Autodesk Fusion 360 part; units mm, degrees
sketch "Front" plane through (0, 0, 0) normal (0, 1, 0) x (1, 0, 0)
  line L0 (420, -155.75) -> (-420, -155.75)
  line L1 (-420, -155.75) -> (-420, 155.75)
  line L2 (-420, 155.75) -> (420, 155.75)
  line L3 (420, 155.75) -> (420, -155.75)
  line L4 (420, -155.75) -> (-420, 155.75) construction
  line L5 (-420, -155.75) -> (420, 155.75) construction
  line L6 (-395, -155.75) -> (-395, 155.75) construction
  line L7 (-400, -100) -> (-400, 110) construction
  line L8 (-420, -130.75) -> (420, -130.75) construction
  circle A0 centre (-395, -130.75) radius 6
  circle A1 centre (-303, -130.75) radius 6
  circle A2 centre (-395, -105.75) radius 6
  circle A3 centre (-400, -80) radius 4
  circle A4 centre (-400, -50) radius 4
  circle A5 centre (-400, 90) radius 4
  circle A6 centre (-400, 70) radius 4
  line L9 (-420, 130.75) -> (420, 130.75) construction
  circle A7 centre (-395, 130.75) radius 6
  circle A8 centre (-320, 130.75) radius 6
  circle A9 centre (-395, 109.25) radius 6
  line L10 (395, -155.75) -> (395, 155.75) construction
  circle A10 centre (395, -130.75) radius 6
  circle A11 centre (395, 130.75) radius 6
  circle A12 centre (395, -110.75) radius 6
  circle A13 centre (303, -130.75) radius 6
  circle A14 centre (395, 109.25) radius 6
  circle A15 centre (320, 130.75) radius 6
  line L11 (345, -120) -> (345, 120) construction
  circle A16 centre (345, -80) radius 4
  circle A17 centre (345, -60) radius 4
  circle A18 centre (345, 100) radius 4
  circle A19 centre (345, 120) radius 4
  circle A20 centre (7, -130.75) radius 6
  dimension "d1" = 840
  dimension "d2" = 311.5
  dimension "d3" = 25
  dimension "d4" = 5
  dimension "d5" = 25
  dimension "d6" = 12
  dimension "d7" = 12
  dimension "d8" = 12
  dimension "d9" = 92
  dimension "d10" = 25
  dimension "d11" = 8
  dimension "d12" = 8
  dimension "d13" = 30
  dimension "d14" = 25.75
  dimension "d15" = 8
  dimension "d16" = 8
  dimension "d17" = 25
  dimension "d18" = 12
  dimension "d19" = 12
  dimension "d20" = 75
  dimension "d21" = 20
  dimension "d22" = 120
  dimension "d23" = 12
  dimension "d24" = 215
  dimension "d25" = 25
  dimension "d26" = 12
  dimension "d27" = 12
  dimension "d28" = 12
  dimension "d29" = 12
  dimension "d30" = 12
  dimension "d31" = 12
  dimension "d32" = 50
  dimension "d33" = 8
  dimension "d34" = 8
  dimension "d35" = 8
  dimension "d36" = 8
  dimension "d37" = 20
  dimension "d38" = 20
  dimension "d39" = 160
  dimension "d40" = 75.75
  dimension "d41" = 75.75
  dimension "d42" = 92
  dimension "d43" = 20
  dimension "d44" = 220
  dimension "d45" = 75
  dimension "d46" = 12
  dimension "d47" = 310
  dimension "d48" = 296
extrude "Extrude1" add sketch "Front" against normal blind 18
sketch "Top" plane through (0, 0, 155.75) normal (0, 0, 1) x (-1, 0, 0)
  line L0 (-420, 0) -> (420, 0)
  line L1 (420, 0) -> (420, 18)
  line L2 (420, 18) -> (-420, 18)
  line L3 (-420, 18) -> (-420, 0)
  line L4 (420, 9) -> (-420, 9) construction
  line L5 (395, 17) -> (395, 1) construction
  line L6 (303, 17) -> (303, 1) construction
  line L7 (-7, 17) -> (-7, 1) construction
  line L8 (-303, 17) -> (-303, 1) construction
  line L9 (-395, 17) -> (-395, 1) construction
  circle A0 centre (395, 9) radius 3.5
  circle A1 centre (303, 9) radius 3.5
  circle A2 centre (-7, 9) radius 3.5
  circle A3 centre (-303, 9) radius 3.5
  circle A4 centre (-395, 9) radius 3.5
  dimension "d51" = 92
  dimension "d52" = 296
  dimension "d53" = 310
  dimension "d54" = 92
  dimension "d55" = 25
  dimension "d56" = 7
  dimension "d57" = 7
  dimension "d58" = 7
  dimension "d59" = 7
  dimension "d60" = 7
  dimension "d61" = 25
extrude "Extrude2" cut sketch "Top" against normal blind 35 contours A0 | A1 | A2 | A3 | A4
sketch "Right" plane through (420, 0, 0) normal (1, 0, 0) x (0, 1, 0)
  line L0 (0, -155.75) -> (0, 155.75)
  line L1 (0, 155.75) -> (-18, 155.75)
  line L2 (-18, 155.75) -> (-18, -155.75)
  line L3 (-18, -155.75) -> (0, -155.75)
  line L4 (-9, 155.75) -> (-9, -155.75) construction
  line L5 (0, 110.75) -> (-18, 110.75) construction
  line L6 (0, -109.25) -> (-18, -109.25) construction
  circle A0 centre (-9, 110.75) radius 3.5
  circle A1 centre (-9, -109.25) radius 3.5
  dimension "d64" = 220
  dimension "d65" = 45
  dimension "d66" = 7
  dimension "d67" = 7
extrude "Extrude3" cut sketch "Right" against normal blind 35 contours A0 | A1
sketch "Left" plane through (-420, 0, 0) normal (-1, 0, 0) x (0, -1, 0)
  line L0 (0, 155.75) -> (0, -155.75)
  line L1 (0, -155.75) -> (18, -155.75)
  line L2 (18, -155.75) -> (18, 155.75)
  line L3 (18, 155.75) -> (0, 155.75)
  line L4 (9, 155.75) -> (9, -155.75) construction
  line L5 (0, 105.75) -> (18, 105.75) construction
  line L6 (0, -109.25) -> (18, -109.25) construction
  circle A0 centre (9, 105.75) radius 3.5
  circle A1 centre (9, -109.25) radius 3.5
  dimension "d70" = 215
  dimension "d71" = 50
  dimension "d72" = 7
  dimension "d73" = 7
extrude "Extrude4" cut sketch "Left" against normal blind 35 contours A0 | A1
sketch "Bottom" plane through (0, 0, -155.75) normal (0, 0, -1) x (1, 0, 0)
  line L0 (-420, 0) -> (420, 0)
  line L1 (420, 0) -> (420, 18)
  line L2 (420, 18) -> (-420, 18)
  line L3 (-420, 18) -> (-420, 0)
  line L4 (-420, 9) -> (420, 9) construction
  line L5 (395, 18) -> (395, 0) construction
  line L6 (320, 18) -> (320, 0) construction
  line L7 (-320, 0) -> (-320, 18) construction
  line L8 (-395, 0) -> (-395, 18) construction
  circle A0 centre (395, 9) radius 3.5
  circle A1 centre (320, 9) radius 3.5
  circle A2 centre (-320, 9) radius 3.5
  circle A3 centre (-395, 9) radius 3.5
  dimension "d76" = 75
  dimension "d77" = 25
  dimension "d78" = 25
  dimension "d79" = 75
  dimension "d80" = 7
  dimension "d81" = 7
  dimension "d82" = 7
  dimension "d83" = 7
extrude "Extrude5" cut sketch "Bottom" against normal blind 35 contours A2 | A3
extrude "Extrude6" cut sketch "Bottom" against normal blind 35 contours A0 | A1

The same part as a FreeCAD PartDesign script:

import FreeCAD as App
import Part
import Sketcher

V = App.Vector

doc = App.newDocument("Part")
body = doc.addObject("PartDesign::Body", "Body")

# Sketch on XZ plane
sketch1 = body.newObject("Sketcher::SketchObject", "Sketch")
sketch1.AttachmentSupport = (doc.getObject("XZ_Plane"), [""])
sketch1.MapMode = "FlatFace"
sketch1.addGeometry(Part.LineSegment(V(-420, 155.8, 0), V(420, 155.8, 0)), False)
sketch1.addGeometry(Part.LineSegment(V(420, 155.8, 0), V(420, -155.8, 0)), False)
sketch1.addGeometry(Part.LineSegment(V(420, -155.8, 0), V(-420, -155.8, 0)), False)
sketch1.addGeometry(Part.LineSegment(V(-420, -155.8, 0), V(-420, 155.8, 0)), False)
sketch1.addGeometry(Part.Circle(V(-395, 130.8, 0), V(0, 0, 1), 6), False)
sketch1.addGeometry(Part.Circle(V(-303, 130.8, 0), V(0, 0, 1), 6), False)
sketch1.addGeometry(Part.Circle(V(-395, 105.8, 0), V(0, 0, 1), 6), False)
sketch1.addGeometry(Part.Circle(V(-400, 80, 0), V(0, 0, 1), 4), False)
sketch1.addGeometry(Part.Circle(V(-400, 50, 0), V(0, 0, 1), 4), False)
sketch1.addGeometry(Part.Circle(V(7, 130.8, 0), V(0, 0, 1), 6), False)
sketch1.addGeometry(Part.Circle(V(303, 130.8, 0), V(0, 0, 1), 6), False)
sketch1.addGeometry(Part.Circle(V(395, 130.8, 0), V(0, 0, 1), 6), False)
sketch1.addGeometry(Part.Circle(V(395, 110.8, 0), V(0, 0, 1), 6), False)
sketch1.addGeometry(Part.Circle(V(345, 80, 0), V(0, 0, 1), 4), False)
sketch1.addGeometry(Part.Circle(V(345, 60, 0), V(0, 0, 1), 4), False)
sketch1.addGeometry(Part.Circle(V(-400, -70, 0), V(0, 0, 1), 4), False)
sketch1.addGeometry(Part.Circle(V(-400, -90, 0), V(0, 0, 1), 4), False)
sketch1.addGeometry(Part.Circle(V(-395, -109.2, 0), V(0, 0, 1), 6), False)
sketch1.addGeometry(Part.Circle(V(-395, -130.8, 0), V(0, 0, 1), 6), False)
sketch1.addGeometry(Part.Circle(V(-320, -130.8, 0), V(0, 0, 1), 6), False)
sketch1.addGeometry(Part.Circle(V(345, -100, 0), V(0, 0, 1), 4), False)
sketch1.addGeometry(Part.Circle(V(395, -109.2, 0), V(0, 0, 1), 6), False)
sketch1.addGeometry(Part.Circle(V(345, -120, 0), V(0, 0, 1), 4), False)
sketch1.addGeometry(Part.Circle(V(320, -130.8, 0), V(0, 0, 1), 6), False)
sketch1.addGeometry(Part.Circle(V(395, -130.8, 0), V(0, 0, 1), 6), False)
sketch1.addConstraint(Sketcher.Constraint("Coincident", 0, 2, 1, 1))
sketch1.addConstraint(Sketcher.Constraint("Coincident", 1, 2, 2, 1))
sketch1.addConstraint(Sketcher.Constraint("Coincident", 2, 2, 3, 1))
sketch1.addConstraint(Sketcher.Constraint("Coincident", 3, 2, 0, 1))
sketch1.addConstraint(Sketcher.Constraint("Horizontal", 0))
sketch1.addConstraint(Sketcher.Constraint("Vertical", 1))
sketch1.addConstraint(Sketcher.Constraint("Horizontal", 2))
sketch1.addConstraint(Sketcher.Constraint("Vertical", 3))
sketch1.addConstraint(Sketcher.Constraint("Equal", 4, 5))
sketch1.addConstraint(Sketcher.Constraint("Equal", 5, 6))
sketch1.addConstraint(Sketcher.Constraint("Equal", 7, 8))
sketch1.addConstraint(Sketcher.Constraint("Equal", 6, 9))
sketch1.addConstraint(Sketcher.Constraint("Equal", 9, 10))
sketch1.addConstraint(Sketcher.Constraint("Equal", 10, 11))
sketch1.addConstraint(Sketcher.Constraint("Equal", 11, 12))
sketch1.addConstraint(Sketcher.Constraint("Equal", 8, 13))
sketch1.addConstraint(Sketcher.Constraint("Equal", 13, 14))
sketch1.addConstraint(Sketcher.Constraint("Equal", 14, 15))
sketch1.addConstraint(Sketcher.Constraint("Equal", 15, 16))
sketch1.addConstraint(Sketcher.Constraint("Equal", 12, 17))
sketch1.addConstraint(Sketcher.Constraint("Equal", 17, 18))
sketch1.addConstraint(Sketcher.Constraint("Equal", 18, 19))
sketch1.addConstraint(Sketcher.Constraint("Equal", 16, 20))
sketch1.addConstraint(Sketcher.Constraint("Equal", 19, 21))
sketch1.addConstraint(Sketcher.Constraint("Equal", 20, 22))
sketch1.addConstraint(Sketcher.Constraint("Equal", 21, 23))
sketch1.addConstraint(Sketcher.Constraint("Equal", 23, 24))
sketch1.addConstraint(Sketcher.Constraint("Symmetric", 11, 3, 18, 3, -1, 1))
sketch1.addConstraint(Sketcher.Constraint("Symmetric", 4, 3, 24, 3, -1, 1))
sketch1.addConstraint(Sketcher.Constraint("Symmetric", 0, 2, 2, 2, -1, 1))
sketch1.addConstraint(Sketcher.Constraint("Symmetric", 5, 3, 10, 3, -2))
sketch1.addConstraint(Sketcher.Constraint("Symmetric", 4, 3, 11, 3, -2))
sketch1.addConstraint(Sketcher.Constraint("Symmetric", 17, 3, 21, 3, -2))
sketch1.addConstraint(Sketcher.Constraint("Symmetric", 19, 3, 23, 3, -2))
sketch1.addConstraint(Sketcher.Constraint("Horizontal", 4, 3, 5, 3))
sketch1.addConstraint(Sketcher.Constraint("Horizontal", 5, 3, 9, 3))
sketch1.addConstraint(Sketcher.Constraint("Horizontal", 7, 3, 13, 3))
sketch1.addConstraint(Sketcher.Constraint("Horizontal", 18, 3, 19, 3))
sketch1.addConstraint(Sketcher.Constraint("Vertical", 4, 3, 6, 3))
sketch1.addConstraint(Sketcher.Constraint("Vertical", 7, 3, 8, 3))
sketch1.addConstraint(Sketcher.Constraint("Vertical", 11, 3, 12, 3))
sketch1.addConstraint(Sketcher.Constraint("Vertical", 13, 3, 14, 3))
sketch1.addConstraint(Sketcher.Constraint("Vertical", 8, 3, 15, 3))
sketch1.addConstraint(Sketcher.Constraint("Vertical", 15, 3, 16, 3))
sketch1.addConstraint(Sketcher.Constraint("Vertical", 6, 3, 17, 3))
sketch1.addConstraint(Sketcher.Constraint("Vertical", 14, 3, 20, 3))
sketch1.addConstraint(Sketcher.Constraint("Vertical", 20, 3, 22, 3))
sketch1.addConstraint(Sketcher.Constraint("Diameter", 4, 12.0))
sketch1.addConstraint(Sketcher.Constraint("Diameter", 7, 8.0))
sketch1.addConstraint(Sketcher.Constraint("DistanceX", 0, 1, 0, 2, 840.0))
sketch1.addConstraint(Sketcher.Constraint("DistanceY", 1, 2, 1, 1, 311.5))
sketch1.addConstraint(Sketcher.Constraint("DistanceY", -1, 1, 8, 3, 50.0))
sketch1.addConstraint(Sketcher.Constraint("DistanceY", 22, 3, -1, 1, 120.0))
sketch1.addConstraint(Sketcher.Constraint("DistanceX", 4, 3, 5, 3, 92.0))
sketch1.addConstraint(Sketcher.Constraint("DistanceY", 6, 3, 4, 3, 25.0))
sketch1.addConstraint(Sketcher.Constraint("DistanceX", 7, 3, 6, 3, 5.0))
sketch1.addConstraint(Sketcher.Constraint("DistanceY", 8, 3, 7, 3, 30.0))
sketch1.addConstraint(Sketcher.Constraint("DistanceX", 5, 3, 9, 3, 310.0))
sketch1.addConstraint(Sketcher.Constraint("DistanceX", 9, 3, 10, 3, 296.0))
sketch1.addConstraint(Sketcher.Constraint("DistanceY", 12, 3, 11, 3, 20.0))
sketch1.addConstraint(Sketcher.Constraint("DistanceX", 13, 3, 12, 3, 50.0))
sketch1.addConstraint(Sketcher.Constraint("DistanceY", 14, 3, 13, 3, 20.0))
sketch1.addConstraint(Sketcher.Constraint("DistanceY", 15, 3, 8, 3, 120.0))
sketch1.addConstraint(Sketcher.Constraint("DistanceY", 16, 3, 15, 3, 20.0))
sketch1.addConstraint(Sketcher.Constraint("DistanceY", 17, 3, 6, 3, 215.0))
sketch1.addConstraint(Sketcher.Constraint("DistanceX", 18, 3, 19, 3, 75.0))
sketch1.addConstraint(Sketcher.Constraint("DistanceY", 20, 3, 14, 3, 160.0))
sketch1.addConstraint(Sketcher.Constraint("DistanceY", 11, 3, 0, 2, 25.0))
pad1 = body.newObject("PartDesign::Pad", "Pad")
pad1.Profile = sketch1
pad1.Length = 18

# Sketch on XY plane
sketch2 = body.newObject("Sketcher::SketchObject", "Sketch001")
sketch2.AttachmentSupport = (doc.getObject("XY_Plane"), [""])
sketch2.MapMode = "FlatFace"
sketch2.AttachmentOffset = App.Placement(V(0, 0, 155.75), App.Rotation())
sketch2.addGeometry(Part.Circle(V(-395, -9, 0), V(0, 0, 1), 3.5), False)
sketch2.addGeometry(Part.Circle(V(-303, -9, 0), V(0, 0, 1), 3.5), False)
sketch2.addGeometry(Part.Circle(V(7, -9, 0), V(0, 0, 1), 3.5), False)
sketch2.addGeometry(Part.Circle(V(303, -9, 0), V(0, 0, 1), 3.5), False)
sketch2.addGeometry(Part.Circle(V(395, -9, 0), V(0, 0, 1), 3.5), False)
sketch2.addConstraint(Sketcher.Constraint("Equal", 0, 1))
sketch2.addConstraint(Sketcher.Constraint("Equal", 1, 2))
sketch2.addConstraint(Sketcher.Constraint("Equal", 2, 3))
sketch2.addConstraint(Sketcher.Constraint("Equal", 3, 4))
sketch2.addConstraint(Sketcher.Constraint("Symmetric", 1, 3, 3, 3, -2))
sketch2.addConstraint(Sketcher.Constraint("Symmetric", 0, 3, 4, 3, -2))
sketch2.addConstraint(Sketcher.Constraint("Horizontal", 0, 3, 1, 3))
sketch2.addConstraint(Sketcher.Constraint("Horizontal", 1, 3, 2, 3))
sketch2.addConstraint(Sketcher.Constraint("Diameter", 0, 7.0))
sketch2.addConstraint(Sketcher.Constraint("DistanceX", -1, 1, 2, 3, 7.0))
sketch2.addConstraint(Sketcher.Constraint("DistanceX", 0, 3, 1, 3, 92.0))
sketch2.addConstraint(Sketcher.Constraint("DistanceX", 1, 3, 2, 3, 310.0))
sketch2.addConstraint(Sketcher.Constraint("DistanceY", 0, 3, -1, 1, 9.0))
pocket1 = body.newObject("PartDesign::Pocket", "Pocket")
pocket1.Profile = sketch2
pocket1.Length = 35

# Sketch on YZ plane
sketch3 = body.newObject("Sketcher::SketchObject", "Sketch002")
sketch3.AttachmentSupport = (doc.getObject("YZ_Plane"), [""])
sketch3.MapMode = "FlatFace"
sketch3.AttachmentOffset = App.Placement(V(0, 0, 420), App.Rotation())
sketch3.addGeometry(Part.Circle(V(-9, 110.8, 0), V(0, 0, 1), 3.5), False)
sketch3.addGeometry(Part.Circle(V(-9, -109.2, 0), V(0, 0, 1), 3.5), False)
sketch3.addConstraint(Sketcher.Constraint("Equal", 0, 1))
sketch3.addConstraint(Sketcher.Constraint("Vertical", 0, 3, 1, 3))
sketch3.addConstraint(Sketcher.Constraint("Diameter", 0, 7.0))
sketch3.addConstraint(Sketcher.Constraint("DistanceY", 1, 3, 0, 3, 220.0))
sketch3.addConstraint(Sketcher.Constraint("DistanceX", 0, 3, -1, 1, 9.0))
sketch3.addConstraint(Sketcher.Constraint("DistanceY", -1, 1, 0, 3, 110.75))
pocket2 = body.newObject("PartDesign::Pocket", "Pocket001")
pocket2.Profile = sketch3
pocket2.Length = 35

# Sketch on YZ plane
sketch4 = body.newObject("Sketcher::SketchObject", "Sketch003")
sketch4.AttachmentSupport = (doc.getObject("YZ_Plane"), [""])
sketch4.MapMode = "FlatFace"
sketch4.AttachmentOffset = App.Placement(V(0, 0, -420), App.Rotation())
sketch4.addGeometry(Part.Circle(V(-9, 105.8, 0), V(0, 0, 1), 3.5), False)
sketch4.addGeometry(Part.Circle(V(-9, -109.2, 0), V(0, 0, 1), 3.5), False)
sketch4.addConstraint(Sketcher.Constraint("Equal", 0, 1))
sketch4.addConstraint(Sketcher.Constraint("Vertical", 0, 3, 1, 3))
sketch4.addConstraint(Sketcher.Constraint("Diameter", 0, 7.0))
sketch4.addConstraint(Sketcher.Constraint("DistanceY", 1, 3, 0, 3, 215.0))
sketch4.addConstraint(Sketcher.Constraint("DistanceX", 0, 3, -1, 1, 9.0))
sketch4.addConstraint(Sketcher.Constraint("DistanceY", -1, 1, 0, 3, 105.75))
pocket3 = body.newObject("PartDesign::Pocket", "Pocket002")
pocket3.Profile = sketch4
pocket3.Length = 35
pocket3.Reversed = True

# Sketch on XY plane
sketch5 = body.newObject("Sketcher::SketchObject", "Sketch004")
sketch5.AttachmentSupport = (doc.getObject("XY_Plane"), [""])
sketch5.MapMode = "FlatFace"
sketch5.AttachmentOffset = App.Placement(V(0, 0, -155.75), App.Rotation())
sketch5.addGeometry(Part.Circle(V(-320, -9, 0), V(0, 0, 1), 3.5), False)
sketch5.addGeometry(Part.Circle(V(-395, -9, 0), V(0, 0, 1), 3.5), False)
sketch5.addConstraint(Sketcher.Constraint("Equal", 0, 1))
sketch5.addConstraint(Sketcher.Constraint("Horizontal", 0, 3, 1, 3))
sketch5.addConstraint(Sketcher.Constraint("Diameter", 0, 7.0))
sketch5.addConstraint(Sketcher.Constraint("DistanceX", 1, 3, 0, 3, 75.0))
sketch5.addConstraint(Sketcher.Constraint("DistanceX", 0, 3, -1, 1, 320.0))
sketch5.addConstraint(Sketcher.Constraint("DistanceY", 0, 3, -1, 1, 9.0))
pocket4 = body.newObject("PartDesign::Pocket", "Pocket003")
pocket4.Profile = sketch5
pocket4.Length = 35
pocket4.Reversed = True

# Sketch on XY plane
sketch6 = body.newObject("Sketcher::SketchObject", "Sketch005")
sketch6.AttachmentSupport = (doc.getObject("XY_Plane"), [""])
sketch6.MapMode = "FlatFace"
sketch6.AttachmentOffset = App.Placement(V(0, 0, -155.75), App.Rotation())
sketch6.addGeometry(Part.Circle(V(395, -9, 0), V(0, 0, 1), 3.5), False)
sketch6.addGeometry(Part.Circle(V(320, -9, 0), V(0, 0, 1), 3.5), False)
sketch6.addConstraint(Sketcher.Constraint("Equal", 0, 1))
sketch6.addConstraint(Sketcher.Constraint("Horizontal", 0, 3, 1, 3))
sketch6.addConstraint(Sketcher.Constraint("Diameter", 0, 7.0))
sketch6.addConstraint(Sketcher.Constraint("DistanceX", 1, 3, 0, 3, 75.0))
sketch6.addConstraint(Sketcher.Constraint("DistanceX", -1, 1, 0, 3, 395.0))
sketch6.addConstraint(Sketcher.Constraint("DistanceY", 0, 3, -1, 1, 9.0))
pocket5 = body.newObject("PartDesign::Pocket", "Pocket004")
pocket5.Profile = sketch6
pocket5.Length = 35
pocket5.Reversed = True

doc.recompute()
